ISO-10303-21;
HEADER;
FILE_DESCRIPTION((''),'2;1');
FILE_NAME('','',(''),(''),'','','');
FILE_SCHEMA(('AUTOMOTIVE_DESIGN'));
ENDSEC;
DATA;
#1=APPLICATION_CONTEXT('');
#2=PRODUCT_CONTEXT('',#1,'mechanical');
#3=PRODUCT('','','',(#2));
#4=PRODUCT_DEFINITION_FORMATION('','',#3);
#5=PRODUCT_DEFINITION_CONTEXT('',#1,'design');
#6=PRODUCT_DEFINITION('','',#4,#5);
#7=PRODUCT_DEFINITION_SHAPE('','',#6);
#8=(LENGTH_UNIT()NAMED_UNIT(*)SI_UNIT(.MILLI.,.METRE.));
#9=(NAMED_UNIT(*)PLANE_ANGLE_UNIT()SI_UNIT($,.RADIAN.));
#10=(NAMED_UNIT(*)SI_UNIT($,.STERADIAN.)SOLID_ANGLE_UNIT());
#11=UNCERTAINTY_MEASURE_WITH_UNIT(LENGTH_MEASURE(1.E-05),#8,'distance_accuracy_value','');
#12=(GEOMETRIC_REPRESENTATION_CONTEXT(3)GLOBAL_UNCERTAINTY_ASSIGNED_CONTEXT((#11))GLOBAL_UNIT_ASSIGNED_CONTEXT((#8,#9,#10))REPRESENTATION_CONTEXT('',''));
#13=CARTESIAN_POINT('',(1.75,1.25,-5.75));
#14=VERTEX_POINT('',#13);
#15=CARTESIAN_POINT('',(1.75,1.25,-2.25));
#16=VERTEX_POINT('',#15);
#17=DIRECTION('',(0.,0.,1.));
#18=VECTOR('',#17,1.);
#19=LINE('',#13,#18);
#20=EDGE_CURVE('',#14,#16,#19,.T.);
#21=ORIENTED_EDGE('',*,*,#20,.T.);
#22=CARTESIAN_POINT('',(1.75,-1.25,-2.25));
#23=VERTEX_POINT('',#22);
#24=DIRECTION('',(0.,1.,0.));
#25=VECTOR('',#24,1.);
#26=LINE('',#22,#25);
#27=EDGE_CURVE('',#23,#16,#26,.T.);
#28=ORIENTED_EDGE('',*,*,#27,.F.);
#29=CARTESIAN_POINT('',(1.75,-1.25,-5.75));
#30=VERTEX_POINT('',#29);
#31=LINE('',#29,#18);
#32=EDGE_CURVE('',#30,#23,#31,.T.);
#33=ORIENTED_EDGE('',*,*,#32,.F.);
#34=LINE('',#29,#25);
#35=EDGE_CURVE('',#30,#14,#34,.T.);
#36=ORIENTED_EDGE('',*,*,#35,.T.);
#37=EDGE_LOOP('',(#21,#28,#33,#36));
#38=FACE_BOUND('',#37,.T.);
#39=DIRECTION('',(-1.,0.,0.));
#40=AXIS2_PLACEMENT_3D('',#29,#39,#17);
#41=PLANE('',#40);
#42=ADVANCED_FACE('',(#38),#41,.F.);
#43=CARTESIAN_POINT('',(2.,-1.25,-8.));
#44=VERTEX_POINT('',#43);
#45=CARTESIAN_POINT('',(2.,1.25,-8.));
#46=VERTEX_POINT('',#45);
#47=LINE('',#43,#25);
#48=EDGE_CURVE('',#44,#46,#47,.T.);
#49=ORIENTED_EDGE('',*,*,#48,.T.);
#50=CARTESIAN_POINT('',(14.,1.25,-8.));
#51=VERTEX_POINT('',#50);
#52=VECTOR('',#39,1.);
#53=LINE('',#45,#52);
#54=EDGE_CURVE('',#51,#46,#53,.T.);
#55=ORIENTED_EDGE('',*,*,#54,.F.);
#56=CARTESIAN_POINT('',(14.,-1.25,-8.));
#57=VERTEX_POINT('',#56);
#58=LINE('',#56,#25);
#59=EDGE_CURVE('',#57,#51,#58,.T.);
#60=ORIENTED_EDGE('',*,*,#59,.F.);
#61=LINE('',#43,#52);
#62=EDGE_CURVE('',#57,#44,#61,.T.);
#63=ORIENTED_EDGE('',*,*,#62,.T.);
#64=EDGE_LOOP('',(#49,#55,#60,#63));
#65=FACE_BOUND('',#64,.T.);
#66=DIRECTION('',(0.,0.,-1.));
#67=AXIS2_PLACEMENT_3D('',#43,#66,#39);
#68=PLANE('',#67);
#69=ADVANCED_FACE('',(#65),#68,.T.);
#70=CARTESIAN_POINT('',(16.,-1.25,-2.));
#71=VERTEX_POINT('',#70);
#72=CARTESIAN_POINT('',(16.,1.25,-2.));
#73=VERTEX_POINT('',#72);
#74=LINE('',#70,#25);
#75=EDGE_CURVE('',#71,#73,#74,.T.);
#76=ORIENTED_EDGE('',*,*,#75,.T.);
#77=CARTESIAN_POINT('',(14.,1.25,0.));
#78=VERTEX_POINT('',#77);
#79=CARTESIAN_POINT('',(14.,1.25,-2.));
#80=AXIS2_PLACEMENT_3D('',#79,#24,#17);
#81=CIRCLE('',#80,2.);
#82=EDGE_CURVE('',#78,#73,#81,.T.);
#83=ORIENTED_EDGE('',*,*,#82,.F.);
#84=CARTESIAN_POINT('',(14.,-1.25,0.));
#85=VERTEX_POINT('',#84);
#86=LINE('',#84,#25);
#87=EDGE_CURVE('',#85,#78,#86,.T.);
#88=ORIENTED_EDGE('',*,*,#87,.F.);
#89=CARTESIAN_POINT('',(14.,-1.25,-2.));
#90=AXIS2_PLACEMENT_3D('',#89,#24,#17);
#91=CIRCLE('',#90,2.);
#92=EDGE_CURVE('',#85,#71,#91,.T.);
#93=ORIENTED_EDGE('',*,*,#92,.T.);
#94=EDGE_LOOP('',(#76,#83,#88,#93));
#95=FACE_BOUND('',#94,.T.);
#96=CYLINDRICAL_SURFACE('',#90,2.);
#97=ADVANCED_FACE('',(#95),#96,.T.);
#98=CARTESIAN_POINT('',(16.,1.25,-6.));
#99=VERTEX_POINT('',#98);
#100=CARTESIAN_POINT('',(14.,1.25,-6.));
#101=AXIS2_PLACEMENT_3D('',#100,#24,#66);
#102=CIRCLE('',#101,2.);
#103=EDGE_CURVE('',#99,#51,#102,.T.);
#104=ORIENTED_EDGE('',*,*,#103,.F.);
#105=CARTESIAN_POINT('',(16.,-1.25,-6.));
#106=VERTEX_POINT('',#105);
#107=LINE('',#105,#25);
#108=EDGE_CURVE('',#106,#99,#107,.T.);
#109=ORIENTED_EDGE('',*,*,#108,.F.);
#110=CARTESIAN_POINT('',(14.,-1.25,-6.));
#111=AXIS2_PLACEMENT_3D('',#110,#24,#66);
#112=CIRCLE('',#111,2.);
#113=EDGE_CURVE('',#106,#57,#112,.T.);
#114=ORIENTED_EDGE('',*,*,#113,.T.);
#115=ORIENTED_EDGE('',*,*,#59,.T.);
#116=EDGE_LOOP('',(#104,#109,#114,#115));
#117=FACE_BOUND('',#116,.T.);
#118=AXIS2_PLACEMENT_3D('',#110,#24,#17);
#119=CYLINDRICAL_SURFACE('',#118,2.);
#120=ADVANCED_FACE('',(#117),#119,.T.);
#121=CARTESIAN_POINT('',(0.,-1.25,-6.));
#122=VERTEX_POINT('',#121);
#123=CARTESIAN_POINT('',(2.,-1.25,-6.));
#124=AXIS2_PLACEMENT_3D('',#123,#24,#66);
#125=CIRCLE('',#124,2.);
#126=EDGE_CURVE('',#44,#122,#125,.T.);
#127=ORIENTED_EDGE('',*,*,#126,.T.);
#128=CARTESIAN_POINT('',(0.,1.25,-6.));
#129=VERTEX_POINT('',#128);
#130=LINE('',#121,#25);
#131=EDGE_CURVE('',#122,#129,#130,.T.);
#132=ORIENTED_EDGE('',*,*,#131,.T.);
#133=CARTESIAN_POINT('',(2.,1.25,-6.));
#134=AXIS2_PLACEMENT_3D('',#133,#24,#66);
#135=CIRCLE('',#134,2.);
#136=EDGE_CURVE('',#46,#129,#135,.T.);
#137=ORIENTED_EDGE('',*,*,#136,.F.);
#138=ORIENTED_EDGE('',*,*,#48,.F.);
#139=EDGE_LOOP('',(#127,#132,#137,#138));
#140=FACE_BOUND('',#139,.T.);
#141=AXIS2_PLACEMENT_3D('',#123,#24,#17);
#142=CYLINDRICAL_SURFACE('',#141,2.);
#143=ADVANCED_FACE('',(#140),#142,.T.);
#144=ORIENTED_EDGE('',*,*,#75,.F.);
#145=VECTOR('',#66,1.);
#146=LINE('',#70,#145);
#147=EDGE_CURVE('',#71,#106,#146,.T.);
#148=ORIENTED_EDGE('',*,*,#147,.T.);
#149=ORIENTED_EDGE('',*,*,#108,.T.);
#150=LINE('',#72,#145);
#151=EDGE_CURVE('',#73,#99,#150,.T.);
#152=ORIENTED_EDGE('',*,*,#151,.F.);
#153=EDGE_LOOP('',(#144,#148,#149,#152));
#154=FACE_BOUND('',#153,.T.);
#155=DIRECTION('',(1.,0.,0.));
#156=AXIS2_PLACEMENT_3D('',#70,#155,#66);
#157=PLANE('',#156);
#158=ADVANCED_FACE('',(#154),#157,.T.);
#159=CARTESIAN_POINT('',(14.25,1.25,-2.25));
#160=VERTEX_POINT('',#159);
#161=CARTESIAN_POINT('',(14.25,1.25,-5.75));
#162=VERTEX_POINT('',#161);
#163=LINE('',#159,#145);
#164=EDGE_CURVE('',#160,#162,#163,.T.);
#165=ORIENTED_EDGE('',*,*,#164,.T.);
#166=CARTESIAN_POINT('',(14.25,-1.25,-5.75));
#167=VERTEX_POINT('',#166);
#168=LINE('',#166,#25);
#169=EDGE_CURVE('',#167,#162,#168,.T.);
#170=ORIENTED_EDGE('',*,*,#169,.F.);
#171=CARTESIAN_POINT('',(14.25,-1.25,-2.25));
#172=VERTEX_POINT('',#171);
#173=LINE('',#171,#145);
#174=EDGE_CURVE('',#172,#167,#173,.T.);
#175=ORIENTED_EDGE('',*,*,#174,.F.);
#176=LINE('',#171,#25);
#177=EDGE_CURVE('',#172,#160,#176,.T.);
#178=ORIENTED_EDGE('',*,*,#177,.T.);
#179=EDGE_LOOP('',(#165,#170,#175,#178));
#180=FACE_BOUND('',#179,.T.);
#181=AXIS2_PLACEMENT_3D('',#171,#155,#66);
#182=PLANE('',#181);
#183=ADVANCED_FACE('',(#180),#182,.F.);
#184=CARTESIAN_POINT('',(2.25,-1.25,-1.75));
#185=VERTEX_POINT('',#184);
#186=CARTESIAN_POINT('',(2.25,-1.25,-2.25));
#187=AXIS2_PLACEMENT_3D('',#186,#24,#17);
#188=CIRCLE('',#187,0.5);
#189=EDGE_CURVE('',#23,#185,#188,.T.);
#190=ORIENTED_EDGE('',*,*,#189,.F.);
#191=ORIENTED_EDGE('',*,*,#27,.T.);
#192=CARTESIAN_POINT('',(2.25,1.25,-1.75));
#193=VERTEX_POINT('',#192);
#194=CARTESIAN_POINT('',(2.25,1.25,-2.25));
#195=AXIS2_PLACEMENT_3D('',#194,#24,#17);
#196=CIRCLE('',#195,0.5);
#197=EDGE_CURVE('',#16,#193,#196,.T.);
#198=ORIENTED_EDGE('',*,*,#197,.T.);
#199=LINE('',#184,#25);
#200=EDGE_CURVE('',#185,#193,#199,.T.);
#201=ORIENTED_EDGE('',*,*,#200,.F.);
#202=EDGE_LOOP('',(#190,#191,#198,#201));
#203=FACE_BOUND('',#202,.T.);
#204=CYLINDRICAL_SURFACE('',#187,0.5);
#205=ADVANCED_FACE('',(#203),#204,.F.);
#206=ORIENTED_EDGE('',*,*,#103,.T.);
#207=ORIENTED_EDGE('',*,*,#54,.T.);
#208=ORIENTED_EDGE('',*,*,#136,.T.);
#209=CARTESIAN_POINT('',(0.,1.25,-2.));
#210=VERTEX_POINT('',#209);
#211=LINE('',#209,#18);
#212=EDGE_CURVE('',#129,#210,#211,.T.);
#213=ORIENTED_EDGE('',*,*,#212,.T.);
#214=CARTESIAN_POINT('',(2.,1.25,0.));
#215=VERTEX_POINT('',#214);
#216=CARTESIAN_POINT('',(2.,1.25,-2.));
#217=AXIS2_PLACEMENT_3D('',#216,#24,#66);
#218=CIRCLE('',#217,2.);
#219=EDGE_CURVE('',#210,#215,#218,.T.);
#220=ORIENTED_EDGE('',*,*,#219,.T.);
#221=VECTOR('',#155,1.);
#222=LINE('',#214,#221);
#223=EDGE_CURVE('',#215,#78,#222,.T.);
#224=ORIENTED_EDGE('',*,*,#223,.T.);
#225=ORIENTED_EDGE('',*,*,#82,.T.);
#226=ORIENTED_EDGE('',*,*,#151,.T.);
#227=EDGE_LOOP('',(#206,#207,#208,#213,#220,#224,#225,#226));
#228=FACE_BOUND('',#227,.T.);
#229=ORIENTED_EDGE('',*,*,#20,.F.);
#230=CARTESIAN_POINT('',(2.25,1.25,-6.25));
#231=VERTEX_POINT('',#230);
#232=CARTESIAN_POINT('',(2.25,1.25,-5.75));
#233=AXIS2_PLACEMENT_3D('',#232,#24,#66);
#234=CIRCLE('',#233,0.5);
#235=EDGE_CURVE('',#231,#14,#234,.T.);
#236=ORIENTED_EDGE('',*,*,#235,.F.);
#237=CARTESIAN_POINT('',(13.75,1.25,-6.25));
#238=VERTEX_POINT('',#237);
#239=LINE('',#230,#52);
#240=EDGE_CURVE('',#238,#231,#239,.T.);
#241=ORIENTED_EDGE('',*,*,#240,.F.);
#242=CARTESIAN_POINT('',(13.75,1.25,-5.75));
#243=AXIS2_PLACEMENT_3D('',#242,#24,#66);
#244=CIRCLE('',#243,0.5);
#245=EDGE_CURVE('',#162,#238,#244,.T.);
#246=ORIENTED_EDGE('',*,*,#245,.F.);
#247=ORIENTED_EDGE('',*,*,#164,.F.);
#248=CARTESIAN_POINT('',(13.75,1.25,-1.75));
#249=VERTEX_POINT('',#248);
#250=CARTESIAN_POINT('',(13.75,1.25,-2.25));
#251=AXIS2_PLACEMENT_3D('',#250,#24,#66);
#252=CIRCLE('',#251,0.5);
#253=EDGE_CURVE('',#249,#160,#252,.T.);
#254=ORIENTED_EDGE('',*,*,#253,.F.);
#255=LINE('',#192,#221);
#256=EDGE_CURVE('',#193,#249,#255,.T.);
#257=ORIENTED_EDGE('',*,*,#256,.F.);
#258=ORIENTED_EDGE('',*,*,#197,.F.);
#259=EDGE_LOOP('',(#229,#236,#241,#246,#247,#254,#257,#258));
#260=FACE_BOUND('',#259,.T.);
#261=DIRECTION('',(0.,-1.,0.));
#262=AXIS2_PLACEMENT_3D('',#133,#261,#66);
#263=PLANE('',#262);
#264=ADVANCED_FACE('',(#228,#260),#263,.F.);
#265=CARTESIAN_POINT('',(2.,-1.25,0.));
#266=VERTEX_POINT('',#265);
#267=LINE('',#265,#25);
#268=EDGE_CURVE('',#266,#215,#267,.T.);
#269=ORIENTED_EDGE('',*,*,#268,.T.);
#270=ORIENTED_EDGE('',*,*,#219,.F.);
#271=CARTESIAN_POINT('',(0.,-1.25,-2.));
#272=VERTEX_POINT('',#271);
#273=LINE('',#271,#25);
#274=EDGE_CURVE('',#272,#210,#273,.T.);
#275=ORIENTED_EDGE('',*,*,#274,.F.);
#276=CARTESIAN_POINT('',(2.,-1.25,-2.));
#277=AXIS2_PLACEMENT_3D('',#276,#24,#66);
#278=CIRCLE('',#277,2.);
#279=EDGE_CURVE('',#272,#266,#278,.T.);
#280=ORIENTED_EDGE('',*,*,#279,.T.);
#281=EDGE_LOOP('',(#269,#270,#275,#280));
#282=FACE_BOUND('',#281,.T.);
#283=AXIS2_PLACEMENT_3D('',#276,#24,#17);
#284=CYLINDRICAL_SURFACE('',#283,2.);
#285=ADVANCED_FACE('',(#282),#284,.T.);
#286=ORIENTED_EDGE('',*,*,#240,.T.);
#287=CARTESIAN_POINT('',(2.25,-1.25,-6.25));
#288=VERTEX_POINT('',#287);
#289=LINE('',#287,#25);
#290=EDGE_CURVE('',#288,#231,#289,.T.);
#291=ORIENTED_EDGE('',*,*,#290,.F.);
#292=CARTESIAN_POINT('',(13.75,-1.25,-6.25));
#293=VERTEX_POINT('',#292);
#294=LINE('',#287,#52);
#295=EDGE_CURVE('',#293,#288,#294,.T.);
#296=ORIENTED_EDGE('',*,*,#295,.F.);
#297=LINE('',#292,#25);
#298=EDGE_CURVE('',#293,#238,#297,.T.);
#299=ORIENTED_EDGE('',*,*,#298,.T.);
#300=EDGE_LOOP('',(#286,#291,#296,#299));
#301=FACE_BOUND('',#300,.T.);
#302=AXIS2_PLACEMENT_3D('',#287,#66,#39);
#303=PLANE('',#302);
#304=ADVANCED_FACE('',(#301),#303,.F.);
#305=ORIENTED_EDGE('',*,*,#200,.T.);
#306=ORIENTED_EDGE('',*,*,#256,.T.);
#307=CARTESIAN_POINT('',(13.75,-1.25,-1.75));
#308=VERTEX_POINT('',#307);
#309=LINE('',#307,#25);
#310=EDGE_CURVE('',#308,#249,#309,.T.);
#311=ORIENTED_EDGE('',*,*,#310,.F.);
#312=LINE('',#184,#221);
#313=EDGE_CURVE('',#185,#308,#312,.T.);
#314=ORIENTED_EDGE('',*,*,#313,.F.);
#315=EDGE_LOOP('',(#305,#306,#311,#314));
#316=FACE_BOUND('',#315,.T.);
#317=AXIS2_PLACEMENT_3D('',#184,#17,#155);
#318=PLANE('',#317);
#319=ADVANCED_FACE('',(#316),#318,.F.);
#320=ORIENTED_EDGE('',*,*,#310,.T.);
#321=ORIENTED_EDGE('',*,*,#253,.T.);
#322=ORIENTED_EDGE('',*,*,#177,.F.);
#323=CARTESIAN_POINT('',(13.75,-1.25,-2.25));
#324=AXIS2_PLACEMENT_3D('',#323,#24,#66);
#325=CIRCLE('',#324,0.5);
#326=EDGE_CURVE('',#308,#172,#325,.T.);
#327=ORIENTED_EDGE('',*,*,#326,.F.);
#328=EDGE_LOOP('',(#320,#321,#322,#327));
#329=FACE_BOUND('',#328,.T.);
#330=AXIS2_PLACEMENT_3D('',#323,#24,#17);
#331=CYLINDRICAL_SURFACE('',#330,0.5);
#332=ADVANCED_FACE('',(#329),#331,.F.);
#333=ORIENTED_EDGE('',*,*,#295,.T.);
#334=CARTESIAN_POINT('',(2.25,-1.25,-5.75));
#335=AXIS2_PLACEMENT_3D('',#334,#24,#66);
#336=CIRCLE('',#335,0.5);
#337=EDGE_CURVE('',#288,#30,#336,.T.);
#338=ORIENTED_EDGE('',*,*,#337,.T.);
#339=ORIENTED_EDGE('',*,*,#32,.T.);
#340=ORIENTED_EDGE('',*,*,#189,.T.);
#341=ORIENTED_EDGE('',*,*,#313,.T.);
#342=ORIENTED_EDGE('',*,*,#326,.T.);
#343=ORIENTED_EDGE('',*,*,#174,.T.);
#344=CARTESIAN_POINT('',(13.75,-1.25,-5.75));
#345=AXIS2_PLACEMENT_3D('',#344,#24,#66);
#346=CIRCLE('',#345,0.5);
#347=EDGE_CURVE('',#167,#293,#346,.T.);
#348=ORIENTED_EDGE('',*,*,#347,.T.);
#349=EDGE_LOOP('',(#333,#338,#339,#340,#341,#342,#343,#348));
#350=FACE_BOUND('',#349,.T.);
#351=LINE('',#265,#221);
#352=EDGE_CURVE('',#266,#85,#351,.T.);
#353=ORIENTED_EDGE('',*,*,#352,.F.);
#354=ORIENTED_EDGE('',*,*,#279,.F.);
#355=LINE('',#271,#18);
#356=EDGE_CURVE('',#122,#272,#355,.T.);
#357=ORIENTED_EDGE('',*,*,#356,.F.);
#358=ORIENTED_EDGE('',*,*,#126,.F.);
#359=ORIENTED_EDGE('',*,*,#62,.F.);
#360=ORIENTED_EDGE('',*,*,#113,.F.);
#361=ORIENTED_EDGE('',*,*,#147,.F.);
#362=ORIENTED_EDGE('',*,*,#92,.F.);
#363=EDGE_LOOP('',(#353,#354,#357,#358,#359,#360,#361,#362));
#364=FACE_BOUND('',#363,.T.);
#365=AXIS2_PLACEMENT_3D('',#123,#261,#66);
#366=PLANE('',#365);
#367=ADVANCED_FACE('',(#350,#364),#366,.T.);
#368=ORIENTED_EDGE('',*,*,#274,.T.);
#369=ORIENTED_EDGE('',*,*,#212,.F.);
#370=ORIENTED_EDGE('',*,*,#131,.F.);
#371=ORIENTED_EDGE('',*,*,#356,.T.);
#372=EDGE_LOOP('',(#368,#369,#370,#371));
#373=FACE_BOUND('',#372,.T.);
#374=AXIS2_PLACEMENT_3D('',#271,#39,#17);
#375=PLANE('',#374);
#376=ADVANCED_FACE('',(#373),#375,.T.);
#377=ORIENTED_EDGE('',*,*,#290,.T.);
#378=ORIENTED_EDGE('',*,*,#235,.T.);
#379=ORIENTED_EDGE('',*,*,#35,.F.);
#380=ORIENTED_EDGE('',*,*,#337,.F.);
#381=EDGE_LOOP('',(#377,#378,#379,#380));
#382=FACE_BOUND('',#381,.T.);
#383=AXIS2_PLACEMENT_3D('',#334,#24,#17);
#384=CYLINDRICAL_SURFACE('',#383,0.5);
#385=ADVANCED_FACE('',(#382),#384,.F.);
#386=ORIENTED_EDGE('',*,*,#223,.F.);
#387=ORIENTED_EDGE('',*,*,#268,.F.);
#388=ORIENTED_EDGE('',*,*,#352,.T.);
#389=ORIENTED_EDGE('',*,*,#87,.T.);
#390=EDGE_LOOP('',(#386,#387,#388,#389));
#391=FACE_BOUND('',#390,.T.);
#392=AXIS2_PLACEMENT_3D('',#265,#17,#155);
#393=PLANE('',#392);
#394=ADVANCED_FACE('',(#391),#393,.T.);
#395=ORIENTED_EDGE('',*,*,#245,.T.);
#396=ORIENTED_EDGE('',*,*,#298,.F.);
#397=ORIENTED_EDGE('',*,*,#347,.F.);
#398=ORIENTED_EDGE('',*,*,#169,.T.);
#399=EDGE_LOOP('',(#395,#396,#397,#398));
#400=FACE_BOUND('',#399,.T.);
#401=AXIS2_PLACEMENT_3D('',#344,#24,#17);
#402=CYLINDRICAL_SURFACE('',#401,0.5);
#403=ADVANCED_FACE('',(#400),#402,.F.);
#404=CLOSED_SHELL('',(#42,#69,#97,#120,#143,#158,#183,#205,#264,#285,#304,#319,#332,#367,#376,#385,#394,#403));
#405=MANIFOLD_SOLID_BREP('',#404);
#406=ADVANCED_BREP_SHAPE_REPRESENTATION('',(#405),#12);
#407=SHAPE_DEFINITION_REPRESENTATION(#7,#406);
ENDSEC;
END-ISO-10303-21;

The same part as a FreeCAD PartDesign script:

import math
import FreeCAD as App
import Part
import Sketcher

doc = App.newDocument("Part")
body = doc.addObject("PartDesign::Body", "Body")

# Sketch on XZ plane
sketch1 = body.newObject("Sketcher::SketchObject", "Sketch")
sketch1.AttachmentSupport = (doc.getObject("XZ_Plane"), [""])
sketch1.MapMode = "FlatFace"
sketch1.addGeometry([
    Part.LineSegment(App.Vector(2, 0, 0), App.Vector(14, 0, 0)),  # 0
    Part.ArcOfCircle(Part.Circle(App.Vector(14, -2, 0), App.Vector(0, 0, 1), 2), math.radians(0), math.radians(90)),  # 1
    Part.LineSegment(App.Vector(16, -2, 0), App.Vector(16, -6, 0)),  # 2
    Part.ArcOfCircle(Part.Circle(App.Vector(14, -6, 0), App.Vector(0, 0, 1), 2), math.radians(-90), math.radians(0)),  # 3
    Part.LineSegment(App.Vector(14, -8, 0), App.Vector(2, -8, 0)),  # 4
    Part.ArcOfCircle(Part.Circle(App.Vector(2, -6, 0), App.Vector(0, 0, 1), 2), math.radians(-180), math.radians(-90)),  # 5
    Part.LineSegment(App.Vector(0, -6, 0), App.Vector(0, -2, 0)),  # 6
    Part.ArcOfCircle(Part.Circle(App.Vector(2, -2, 0), App.Vector(0, 0, 1), 2), math.radians(90), math.radians(180)),  # 7
    Part.LineSegment(App.Vector(1.75, -2.25, 0), App.Vector(1.75, -5.75, 0)),  # 8
    Part.ArcOfCircle(Part.Circle(App.Vector(2.25, -5.75, 0), App.Vector(0, 0, 1), 0.5), math.radians(180), math.radians(270)),  # 9
    Part.LineSegment(App.Vector(2.25, -6.25, 0), App.Vector(13.75, -6.25, 0)),  # 10
    Part.ArcOfCircle(Part.Circle(App.Vector(13.75, -5.75, 0), App.Vector(0, 0, 1), 0.5), math.radians(-90), math.radians(0)),  # 11
    Part.LineSegment(App.Vector(14.25, -5.75, 0), App.Vector(14.25, -2.25, 0)),  # 12
    Part.ArcOfCircle(Part.Circle(App.Vector(13.75, -2.25, 0), App.Vector(0, 0, 1), 0.5), math.radians(0), math.radians(90)),  # 13
    Part.LineSegment(App.Vector(13.75, -1.75, 0), App.Vector(2.25, -1.75, 0)),  # 14
    Part.ArcOfCircle(Part.Circle(App.Vector(2.25, -2.25, 0), App.Vector(0, 0, 1), 0.5), math.radians(90), math.radians(180)),  # 15
], False)
sketch1.addConstraint([
    Sketcher.Constraint("Tangent", 0, 2, 1, 2),
    Sketcher.Constraint("Tangent", 1, 1, 2, 1),
    Sketcher.Constraint("Tangent", 2, 2, 3, 2),
    Sketcher.Constraint("Tangent", 3, 1, 4, 1),
    Sketcher.Constraint("Tangent", 4, 2, 5, 2),
    Sketcher.Constraint("Tangent", 5, 1, 6, 1),
    Sketcher.Constraint("Tangent", 6, 2, 7, 2),
    Sketcher.Constraint("Tangent", 7, 1, 0, 1),
    Sketcher.Constraint("Tangent", 8, 2, 9, 1),
    Sketcher.Constraint("Tangent", 9, 2, 10, 1),
    Sketcher.Constraint("Tangent", 10, 2, 11, 1),
    Sketcher.Constraint("Tangent", 11, 2, 12, 1),
    Sketcher.Constraint("Tangent", 12, 2, 13, 1),
    Sketcher.Constraint("Tangent", 13, 2, 14, 1),
    Sketcher.Constraint("Tangent", 14, 2, 15, 1),
    Sketcher.Constraint("Tangent", 15, 2, 8, 1),
    Sketcher.Constraint("Horizontal", 0),
    Sketcher.Constraint("Vertical", 2),
    Sketcher.Constraint("Horizontal", 4),
    Sketcher.Constraint("Vertical", 6),
    Sketcher.Constraint("Vertical", 8),
    Sketcher.Constraint("Horizontal", 10),
    Sketcher.Constraint("Vertical", 12),
    Sketcher.Constraint("Horizontal", 14),
    Sketcher.Constraint("Equal", 1, 3),
    Sketcher.Constraint("Equal", 3, 5),
    Sketcher.Constraint("Equal", 5, 7),
    Sketcher.Constraint("Equal", 9, 11),
    Sketcher.Constraint("Equal", 11, 13),
    Sketcher.Constraint("Equal", 13, 15),
    Sketcher.Constraint("PointOnObject", 0, 2, -1),
    Sketcher.Constraint("PointOnObject", 5, 1, -2),
    Sketcher.Constraint("Radius", 1, 2.0),
    Sketcher.Constraint("Radius", 9, 0.5),
    Sketcher.Constraint("DistanceX", 0, 1, 0, 2, 12.0),
    Sketcher.Constraint("DistanceY", 2, 2, 2, 1, 4.0),
    Sketcher.Constraint("DistanceX", 10, 1, 10, 2, 11.5),
    Sketcher.Constraint("DistanceY", 8, 2, 8, 1, 3.5),
    Sketcher.Constraint("DistanceX", -1, 1, 9, 3, 2.25),
    Sketcher.Constraint("DistanceY", 9, 3, -1, 1, 5.75),
])
pad1 = body.newObject("PartDesign::Pad", "Pad")
pad1.Profile = sketch1
pad1.Type = "TwoLengths"
pad1.Length = 1.25
pad1.Length2 = 1.25
pad1.Reversed = True

doc.recompute()
